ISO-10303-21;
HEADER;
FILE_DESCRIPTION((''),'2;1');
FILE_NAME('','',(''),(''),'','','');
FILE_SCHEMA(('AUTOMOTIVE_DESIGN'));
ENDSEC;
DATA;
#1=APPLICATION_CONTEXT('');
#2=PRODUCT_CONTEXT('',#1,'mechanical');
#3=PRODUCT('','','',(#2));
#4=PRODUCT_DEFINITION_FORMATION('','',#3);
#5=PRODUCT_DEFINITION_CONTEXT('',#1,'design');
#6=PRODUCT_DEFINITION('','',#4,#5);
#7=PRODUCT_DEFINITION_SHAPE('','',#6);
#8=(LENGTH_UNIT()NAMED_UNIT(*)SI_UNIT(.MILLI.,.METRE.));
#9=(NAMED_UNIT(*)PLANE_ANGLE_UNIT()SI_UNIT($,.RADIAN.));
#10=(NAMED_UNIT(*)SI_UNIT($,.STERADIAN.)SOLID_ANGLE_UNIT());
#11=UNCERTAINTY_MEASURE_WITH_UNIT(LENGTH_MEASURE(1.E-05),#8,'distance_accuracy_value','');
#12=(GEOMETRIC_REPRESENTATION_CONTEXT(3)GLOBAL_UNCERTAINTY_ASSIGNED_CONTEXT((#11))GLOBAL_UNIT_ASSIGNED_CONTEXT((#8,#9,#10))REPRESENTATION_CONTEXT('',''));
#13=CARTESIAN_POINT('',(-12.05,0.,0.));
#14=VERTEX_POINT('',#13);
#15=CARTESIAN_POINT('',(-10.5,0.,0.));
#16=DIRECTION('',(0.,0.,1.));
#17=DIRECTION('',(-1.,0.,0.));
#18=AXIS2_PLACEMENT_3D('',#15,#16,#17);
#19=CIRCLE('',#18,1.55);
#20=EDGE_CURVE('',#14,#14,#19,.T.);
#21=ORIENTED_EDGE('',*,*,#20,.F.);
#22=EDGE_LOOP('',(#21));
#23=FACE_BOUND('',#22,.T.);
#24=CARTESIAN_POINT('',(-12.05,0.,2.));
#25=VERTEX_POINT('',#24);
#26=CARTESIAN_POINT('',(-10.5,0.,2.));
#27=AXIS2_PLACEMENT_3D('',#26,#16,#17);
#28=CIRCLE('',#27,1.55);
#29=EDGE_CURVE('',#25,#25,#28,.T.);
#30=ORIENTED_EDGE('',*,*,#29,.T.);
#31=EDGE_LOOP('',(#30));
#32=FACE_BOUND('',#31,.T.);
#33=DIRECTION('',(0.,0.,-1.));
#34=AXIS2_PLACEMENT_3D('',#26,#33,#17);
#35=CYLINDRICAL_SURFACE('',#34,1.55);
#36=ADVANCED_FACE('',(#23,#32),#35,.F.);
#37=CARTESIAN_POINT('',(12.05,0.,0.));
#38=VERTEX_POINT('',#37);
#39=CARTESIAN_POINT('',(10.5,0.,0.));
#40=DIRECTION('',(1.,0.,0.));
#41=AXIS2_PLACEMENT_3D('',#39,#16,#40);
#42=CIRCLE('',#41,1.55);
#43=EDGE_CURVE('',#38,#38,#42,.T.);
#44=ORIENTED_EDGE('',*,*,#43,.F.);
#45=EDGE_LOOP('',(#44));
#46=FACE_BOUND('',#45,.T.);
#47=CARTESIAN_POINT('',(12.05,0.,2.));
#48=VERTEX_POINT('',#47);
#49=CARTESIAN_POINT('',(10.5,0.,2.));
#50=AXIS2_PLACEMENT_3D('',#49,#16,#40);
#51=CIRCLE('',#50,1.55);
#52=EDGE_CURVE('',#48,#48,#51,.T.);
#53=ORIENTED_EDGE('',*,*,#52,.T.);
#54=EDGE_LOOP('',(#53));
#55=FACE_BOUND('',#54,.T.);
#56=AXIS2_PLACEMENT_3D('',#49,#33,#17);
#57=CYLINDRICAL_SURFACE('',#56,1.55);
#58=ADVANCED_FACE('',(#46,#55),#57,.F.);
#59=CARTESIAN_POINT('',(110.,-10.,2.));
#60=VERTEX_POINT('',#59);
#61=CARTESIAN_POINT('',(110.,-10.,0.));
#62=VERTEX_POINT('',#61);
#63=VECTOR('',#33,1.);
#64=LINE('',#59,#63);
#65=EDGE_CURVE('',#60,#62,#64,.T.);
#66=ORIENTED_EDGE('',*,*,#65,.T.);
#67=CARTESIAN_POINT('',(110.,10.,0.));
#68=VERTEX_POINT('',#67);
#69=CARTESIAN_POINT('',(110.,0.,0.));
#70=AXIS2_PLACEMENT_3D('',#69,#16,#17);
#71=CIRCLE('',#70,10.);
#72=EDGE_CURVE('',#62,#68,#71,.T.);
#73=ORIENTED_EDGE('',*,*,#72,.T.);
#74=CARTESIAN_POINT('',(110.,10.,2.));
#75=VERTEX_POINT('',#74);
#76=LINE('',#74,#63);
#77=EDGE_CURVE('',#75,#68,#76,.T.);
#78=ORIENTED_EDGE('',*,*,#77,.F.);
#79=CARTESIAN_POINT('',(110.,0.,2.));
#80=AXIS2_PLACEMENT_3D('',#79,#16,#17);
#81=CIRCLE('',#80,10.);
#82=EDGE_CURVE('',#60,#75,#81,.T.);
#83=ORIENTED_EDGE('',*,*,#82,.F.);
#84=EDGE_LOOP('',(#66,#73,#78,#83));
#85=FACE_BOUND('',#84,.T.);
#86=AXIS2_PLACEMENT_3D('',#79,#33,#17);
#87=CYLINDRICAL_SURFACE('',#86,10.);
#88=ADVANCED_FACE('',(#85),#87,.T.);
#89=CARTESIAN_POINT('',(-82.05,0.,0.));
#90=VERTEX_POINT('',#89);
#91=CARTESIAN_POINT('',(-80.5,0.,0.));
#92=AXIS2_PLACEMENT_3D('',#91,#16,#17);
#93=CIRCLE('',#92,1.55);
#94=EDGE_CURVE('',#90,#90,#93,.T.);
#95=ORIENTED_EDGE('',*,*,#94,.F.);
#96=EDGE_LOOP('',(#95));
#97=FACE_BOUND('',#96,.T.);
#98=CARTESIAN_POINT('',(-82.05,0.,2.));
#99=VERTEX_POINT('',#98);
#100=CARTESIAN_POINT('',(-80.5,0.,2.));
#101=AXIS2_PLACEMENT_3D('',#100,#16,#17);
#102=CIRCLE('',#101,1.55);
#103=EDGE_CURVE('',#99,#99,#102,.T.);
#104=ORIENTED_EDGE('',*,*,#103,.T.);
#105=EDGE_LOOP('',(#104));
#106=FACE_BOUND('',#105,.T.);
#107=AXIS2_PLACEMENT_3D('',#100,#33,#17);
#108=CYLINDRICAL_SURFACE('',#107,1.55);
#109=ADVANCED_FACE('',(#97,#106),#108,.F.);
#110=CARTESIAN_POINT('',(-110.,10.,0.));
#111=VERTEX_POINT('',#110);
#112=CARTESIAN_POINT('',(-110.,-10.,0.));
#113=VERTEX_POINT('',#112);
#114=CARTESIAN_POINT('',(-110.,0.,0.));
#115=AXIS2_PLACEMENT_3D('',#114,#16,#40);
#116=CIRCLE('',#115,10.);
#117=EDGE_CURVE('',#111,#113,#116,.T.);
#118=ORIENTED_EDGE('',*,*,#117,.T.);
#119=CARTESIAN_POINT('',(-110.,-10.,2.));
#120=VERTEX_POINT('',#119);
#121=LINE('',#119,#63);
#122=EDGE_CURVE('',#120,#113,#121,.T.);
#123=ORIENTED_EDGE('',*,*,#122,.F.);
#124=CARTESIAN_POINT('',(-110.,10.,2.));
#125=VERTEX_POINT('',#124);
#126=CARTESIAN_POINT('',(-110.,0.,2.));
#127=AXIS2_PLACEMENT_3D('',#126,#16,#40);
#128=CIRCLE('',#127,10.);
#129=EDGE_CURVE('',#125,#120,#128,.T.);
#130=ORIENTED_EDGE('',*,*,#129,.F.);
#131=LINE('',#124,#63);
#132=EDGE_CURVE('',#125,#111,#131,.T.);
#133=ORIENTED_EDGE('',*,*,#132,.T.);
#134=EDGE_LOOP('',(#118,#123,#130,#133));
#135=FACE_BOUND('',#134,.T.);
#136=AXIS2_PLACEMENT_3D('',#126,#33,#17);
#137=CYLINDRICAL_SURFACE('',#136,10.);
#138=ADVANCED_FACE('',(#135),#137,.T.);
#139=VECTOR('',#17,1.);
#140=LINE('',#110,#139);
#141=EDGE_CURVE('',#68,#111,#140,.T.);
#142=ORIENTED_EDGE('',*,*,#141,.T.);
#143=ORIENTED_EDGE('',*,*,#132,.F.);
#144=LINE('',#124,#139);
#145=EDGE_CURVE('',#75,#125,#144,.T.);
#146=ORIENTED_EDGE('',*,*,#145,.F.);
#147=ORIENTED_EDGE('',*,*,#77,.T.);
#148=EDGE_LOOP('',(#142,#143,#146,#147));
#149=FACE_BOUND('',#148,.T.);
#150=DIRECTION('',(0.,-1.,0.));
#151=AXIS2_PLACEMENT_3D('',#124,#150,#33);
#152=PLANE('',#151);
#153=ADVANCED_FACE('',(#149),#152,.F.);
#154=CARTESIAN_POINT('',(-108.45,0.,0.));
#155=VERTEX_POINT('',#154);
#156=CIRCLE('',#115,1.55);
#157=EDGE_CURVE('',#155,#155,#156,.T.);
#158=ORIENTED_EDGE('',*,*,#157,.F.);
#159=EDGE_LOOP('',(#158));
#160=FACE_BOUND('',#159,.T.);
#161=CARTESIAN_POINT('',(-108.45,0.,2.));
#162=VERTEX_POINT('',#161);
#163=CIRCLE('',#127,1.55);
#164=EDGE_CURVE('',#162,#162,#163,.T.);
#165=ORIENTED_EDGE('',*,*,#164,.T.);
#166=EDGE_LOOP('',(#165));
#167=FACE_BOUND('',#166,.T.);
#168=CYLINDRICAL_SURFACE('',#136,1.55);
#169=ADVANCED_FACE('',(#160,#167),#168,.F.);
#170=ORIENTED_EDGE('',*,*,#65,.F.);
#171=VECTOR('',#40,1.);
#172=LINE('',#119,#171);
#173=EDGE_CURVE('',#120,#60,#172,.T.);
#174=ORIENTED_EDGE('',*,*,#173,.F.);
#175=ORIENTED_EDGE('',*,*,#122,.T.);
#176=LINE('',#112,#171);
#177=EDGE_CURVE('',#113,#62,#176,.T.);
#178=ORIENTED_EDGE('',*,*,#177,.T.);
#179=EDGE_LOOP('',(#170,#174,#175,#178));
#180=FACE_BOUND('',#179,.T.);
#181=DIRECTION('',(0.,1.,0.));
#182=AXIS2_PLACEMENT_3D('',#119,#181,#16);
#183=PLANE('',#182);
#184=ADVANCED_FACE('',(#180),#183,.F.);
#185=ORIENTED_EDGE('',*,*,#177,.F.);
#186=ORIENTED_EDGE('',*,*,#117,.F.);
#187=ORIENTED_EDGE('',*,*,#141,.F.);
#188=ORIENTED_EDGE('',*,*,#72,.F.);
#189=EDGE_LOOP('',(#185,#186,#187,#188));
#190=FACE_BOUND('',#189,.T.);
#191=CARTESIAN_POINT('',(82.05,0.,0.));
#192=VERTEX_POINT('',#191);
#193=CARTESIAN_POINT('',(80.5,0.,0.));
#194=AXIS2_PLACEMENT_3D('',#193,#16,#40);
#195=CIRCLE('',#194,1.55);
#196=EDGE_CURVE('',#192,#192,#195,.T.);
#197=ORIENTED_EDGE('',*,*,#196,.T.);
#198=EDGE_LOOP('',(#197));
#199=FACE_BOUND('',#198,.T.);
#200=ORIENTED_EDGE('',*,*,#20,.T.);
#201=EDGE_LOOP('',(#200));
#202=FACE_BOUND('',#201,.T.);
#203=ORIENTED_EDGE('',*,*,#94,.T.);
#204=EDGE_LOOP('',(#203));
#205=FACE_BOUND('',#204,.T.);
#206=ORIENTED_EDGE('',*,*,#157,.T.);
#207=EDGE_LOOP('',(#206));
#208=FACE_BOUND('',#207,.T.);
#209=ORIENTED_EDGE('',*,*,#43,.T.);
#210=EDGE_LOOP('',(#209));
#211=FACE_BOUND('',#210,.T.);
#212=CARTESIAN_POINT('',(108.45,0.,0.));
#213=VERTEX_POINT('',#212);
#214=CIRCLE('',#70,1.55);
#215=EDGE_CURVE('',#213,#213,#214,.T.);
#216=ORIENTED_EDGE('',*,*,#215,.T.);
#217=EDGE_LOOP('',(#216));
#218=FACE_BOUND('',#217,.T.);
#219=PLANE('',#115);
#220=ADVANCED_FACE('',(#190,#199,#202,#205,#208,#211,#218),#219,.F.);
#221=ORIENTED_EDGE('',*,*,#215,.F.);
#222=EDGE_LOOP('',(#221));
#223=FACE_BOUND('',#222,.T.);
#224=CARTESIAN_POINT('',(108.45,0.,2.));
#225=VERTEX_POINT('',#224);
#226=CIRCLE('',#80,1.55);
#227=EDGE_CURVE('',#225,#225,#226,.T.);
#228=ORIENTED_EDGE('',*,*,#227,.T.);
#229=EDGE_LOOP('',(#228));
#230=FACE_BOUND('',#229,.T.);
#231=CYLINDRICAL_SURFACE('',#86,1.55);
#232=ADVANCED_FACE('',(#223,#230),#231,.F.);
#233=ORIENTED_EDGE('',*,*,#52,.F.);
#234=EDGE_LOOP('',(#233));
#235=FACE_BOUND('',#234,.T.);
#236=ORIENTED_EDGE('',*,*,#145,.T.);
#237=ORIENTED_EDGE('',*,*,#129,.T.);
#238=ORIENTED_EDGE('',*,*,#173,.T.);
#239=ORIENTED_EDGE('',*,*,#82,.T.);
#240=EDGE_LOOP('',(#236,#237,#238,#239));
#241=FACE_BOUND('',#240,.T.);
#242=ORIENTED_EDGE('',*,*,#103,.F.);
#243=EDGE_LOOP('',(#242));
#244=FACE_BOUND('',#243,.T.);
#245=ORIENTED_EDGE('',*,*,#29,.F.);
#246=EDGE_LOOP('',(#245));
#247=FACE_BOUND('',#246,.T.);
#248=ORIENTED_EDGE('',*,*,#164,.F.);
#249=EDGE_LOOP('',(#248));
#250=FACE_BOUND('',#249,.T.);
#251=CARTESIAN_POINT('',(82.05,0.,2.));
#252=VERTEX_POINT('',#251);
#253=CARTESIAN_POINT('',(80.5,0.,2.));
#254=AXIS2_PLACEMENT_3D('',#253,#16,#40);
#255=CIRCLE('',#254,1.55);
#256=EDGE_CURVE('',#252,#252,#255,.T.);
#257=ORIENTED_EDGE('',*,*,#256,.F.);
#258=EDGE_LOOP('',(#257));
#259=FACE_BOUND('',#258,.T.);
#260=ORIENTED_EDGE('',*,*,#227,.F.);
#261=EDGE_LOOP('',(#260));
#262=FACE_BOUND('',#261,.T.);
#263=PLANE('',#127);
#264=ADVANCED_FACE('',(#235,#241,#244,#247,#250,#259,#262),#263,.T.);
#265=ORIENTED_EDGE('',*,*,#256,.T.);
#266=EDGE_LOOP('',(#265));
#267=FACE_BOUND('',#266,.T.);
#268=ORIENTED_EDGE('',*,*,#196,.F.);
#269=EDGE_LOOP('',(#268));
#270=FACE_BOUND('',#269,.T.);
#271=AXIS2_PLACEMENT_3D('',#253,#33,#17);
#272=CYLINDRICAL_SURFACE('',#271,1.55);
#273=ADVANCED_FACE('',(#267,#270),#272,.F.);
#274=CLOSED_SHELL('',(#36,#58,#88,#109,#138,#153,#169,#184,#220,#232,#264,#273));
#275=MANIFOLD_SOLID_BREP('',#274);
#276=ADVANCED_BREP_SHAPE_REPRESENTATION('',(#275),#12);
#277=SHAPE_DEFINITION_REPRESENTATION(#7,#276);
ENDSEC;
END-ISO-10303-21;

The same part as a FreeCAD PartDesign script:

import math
import FreeCAD as App
import Part
import Sketcher

doc = App.newDocument("Part")
body = doc.addObject("PartDesign::Body", "Body")

sketch1 = body.newObject("Sketcher::SketchObject", "Sketch")
sketch1.AttachmentSupport = (doc.getObject("XY_Plane"), [""])
sketch1.MapMode = "FlatFace"
sketch1.addGeometry([
    Part.LineSegment(App.Vector(110, 10, 0), App.Vector(-110, 10, 0)),
    Part.ArcOfCircle(Part.Circle(App.Vector(-110, 0, 0), App.Vector(0, 0, 1), 10), math.radians(90), math.radians(270)),
    Part.LineSegment(App.Vector(-110, -10, 0), App.Vector(110, -10, 0)),
    Part.ArcOfCircle(Part.Circle(App.Vector(110, 0, 0), App.Vector(0, 0, 1), 10), math.radians(-90), math.radians(90)),
    Part.Circle(App.Vector(110, 0, 0), App.Vector(0, 0, 1), 1.6),
    Part.Circle(App.Vector(80.5, 0, 0), App.Vector(0, 0, 1), 1.6),
    Part.Circle(App.Vector(10.5, 0, 0), App.Vector(0, 0, 1), 1.6),
    Part.Circle(App.Vector(-10.5, 0, 0), App.Vector(0, 0, 1), 1.6),
    Part.Circle(App.Vector(-80.5, 0, 0), App.Vector(0, 0, 1), 1.6),
    Part.Circle(App.Vector(-110, 0, 0), App.Vector(0, 0, 1), 1.6),
], False)
sketch1.addConstraint([
    Sketcher.Constraint("Tangent", 0, 2, 1, 1),
    Sketcher.Constraint("Tangent", 1, 2, 2, 1),
    Sketcher.Constraint("Tangent", 2, 2, 3, 1),
    Sketcher.Constraint("Tangent", 3, 2, 0, 1),
    Sketcher.Constraint("Horizontal", 0),
    Sketcher.Constraint("Horizontal", 2),
    Sketcher.Constraint("Coincident", 4, 3, 3, 3),
    Sketcher.Constraint("Coincident", 9, 3, 1, 3),
    Sketcher.Constraint("Equal", 4, 5),
    Sketcher.Constraint("Equal", 5, 6),
    Sketcher.Constraint("Equal", 6, 7),
    Sketcher.Constraint("Equal", 7, 8),
    Sketcher.Constraint("Equal", 8, 9),
    Sketcher.Constraint("Symmetric", 1, 3, 3, 3, -1, 1),
    Sketcher.Constraint("Symmetric", 6, 3, 7, 3, -1, 1),
    Sketcher.Constraint("Symmetric", 5, 3, 8, 3, -1, 1),
    Sketcher.Constraint("PointOnObject", 5, 3, -1),
    Sketcher.Constraint("PointOnObject", 6, 3, -1),
    Sketcher.Constraint("Radius", 1, 10.0),
    Sketcher.Constraint("Diameter", 4, 3.1),
    Sketcher.Constraint("DistanceX", 0, 2, 0, 1, 220.0),
    Sketcher.Constraint("DistanceX", 6, 3, 5, 3, 70.0),
    Sketcher.Constraint("DistanceX", 7, 3, 6, 3, 21.0),
])
pad1 = body.newObject("PartDesign::Pad", "Pad")
pad1.Profile = sketch1
pad1.Length = 2

doc.recompute()
